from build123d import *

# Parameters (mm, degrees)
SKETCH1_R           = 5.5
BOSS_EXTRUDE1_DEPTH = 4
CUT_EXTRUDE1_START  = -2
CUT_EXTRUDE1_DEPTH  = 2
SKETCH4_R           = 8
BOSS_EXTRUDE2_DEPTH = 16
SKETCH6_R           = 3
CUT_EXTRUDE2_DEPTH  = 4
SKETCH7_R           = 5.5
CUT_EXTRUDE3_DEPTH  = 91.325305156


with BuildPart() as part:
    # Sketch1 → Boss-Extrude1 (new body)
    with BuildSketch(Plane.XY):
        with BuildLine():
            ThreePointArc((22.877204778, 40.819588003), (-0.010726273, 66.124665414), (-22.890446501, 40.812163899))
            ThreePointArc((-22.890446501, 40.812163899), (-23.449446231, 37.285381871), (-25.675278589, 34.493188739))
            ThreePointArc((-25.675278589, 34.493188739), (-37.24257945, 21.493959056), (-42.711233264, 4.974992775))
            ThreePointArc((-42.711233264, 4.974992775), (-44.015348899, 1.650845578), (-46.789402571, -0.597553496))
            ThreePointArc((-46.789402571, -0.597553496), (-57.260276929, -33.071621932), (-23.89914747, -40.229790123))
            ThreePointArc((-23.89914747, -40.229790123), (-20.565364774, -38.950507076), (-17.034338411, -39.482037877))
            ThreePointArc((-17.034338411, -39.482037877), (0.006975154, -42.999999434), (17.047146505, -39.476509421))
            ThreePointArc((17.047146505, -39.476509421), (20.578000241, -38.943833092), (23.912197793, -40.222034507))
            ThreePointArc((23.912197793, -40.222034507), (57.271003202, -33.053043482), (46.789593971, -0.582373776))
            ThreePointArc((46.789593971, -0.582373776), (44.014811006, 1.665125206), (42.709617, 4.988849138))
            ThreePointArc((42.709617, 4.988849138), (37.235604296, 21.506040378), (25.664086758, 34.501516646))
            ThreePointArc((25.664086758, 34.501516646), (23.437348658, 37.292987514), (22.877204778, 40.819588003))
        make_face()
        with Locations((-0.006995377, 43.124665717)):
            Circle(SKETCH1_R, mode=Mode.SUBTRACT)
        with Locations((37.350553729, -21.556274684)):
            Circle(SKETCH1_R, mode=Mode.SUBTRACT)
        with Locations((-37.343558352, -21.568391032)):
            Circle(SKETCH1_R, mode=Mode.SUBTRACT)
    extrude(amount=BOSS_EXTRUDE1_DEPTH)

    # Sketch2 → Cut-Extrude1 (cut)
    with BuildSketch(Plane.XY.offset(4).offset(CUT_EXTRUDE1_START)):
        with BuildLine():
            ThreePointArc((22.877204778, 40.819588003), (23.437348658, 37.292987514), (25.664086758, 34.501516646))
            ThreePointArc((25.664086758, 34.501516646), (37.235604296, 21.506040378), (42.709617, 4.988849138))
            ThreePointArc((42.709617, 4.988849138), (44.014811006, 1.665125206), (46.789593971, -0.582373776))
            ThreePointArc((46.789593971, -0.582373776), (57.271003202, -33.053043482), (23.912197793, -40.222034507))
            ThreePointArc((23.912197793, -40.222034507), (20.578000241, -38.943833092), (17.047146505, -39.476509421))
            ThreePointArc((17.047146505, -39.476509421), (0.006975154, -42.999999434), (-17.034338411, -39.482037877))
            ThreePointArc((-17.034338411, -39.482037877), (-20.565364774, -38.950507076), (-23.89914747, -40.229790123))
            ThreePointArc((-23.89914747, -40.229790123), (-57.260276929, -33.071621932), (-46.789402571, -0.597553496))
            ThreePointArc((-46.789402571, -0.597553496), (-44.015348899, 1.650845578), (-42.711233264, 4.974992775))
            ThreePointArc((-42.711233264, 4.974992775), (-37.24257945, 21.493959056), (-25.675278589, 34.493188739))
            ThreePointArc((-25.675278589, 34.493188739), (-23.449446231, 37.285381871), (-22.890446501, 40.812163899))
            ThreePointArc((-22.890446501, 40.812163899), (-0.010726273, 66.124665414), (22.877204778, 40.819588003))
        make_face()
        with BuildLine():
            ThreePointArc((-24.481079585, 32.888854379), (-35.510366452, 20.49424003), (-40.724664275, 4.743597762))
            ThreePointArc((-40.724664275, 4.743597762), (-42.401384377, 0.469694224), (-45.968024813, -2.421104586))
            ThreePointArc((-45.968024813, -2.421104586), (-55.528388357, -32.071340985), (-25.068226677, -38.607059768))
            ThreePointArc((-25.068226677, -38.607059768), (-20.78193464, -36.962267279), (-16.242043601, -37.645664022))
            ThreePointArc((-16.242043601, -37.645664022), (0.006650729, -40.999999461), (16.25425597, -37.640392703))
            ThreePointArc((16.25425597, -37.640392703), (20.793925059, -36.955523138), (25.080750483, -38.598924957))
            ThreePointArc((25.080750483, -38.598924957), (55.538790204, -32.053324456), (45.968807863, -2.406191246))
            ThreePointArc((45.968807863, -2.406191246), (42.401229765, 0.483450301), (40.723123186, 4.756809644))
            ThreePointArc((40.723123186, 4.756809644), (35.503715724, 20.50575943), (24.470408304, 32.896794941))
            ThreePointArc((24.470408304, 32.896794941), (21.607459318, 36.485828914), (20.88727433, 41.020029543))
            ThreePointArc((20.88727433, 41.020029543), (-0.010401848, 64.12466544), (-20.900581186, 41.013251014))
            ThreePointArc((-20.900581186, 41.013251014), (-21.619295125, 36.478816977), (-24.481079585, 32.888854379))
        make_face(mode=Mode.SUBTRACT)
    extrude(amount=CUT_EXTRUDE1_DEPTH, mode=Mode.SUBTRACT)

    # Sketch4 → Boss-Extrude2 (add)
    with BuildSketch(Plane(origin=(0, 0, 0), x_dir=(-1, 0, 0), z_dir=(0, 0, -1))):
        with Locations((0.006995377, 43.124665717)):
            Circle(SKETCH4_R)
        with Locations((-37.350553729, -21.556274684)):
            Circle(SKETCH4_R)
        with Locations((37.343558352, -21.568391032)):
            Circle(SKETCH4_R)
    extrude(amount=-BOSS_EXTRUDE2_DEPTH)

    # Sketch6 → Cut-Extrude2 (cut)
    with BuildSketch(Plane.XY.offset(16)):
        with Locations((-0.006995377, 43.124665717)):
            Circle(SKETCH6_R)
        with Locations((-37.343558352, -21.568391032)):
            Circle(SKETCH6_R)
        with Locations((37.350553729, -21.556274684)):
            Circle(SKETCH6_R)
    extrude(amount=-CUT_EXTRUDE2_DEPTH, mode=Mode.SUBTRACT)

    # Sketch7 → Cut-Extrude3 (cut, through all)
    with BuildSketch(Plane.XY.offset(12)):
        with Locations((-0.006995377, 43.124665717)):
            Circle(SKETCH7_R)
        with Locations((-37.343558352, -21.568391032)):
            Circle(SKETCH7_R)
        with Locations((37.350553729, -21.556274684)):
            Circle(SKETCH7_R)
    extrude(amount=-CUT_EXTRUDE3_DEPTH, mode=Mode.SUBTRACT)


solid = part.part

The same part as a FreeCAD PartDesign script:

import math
import FreeCAD as App
import Part
import Sketcher

doc = App.newDocument("Part")
body = doc.addObject("PartDesign::Body", "Body")

# Sketch on XY plane
sketch1 = doc.addObject("Sketcher::SketchObject", "Sketch")
body.addObject(sketch1)
sketch1.AttachmentSupport = (doc.XY_Plane, [""])
sketch1.MapMode = "FlatFace"
sketch1.addGeometry([
    Part.ArcOfCircle(Part.Circle(App.Vector(0, 43, 0), App.Vector(0, 0, 1), 23), math.radians(-6), math.radians(186)),  # 0
    Part.ArcOfCircle(Part.Circle(App.Vector(-30, 40, 0), App.Vector(0, 0, 1), 7), math.radians(-53), math.radians(6)),  # 1
    Part.ArcOfCircle(Part.Circle(App.Vector(0, 0, 0), App.Vector(0, 0, 1), 43), math.radians(127), math.radians(173)),  # 2
    Part.ArcOfCircle(Part.Circle(App.Vector(-50, 6, 0), App.Vector(0, 0, 1), 7), math.radians(-66), math.radians(-7)),  # 3
    Part.ArcOfCircle(Part.Circle(App.Vector(-37, -22, 0), App.Vector(0, 0, 1), 23), math.radians(114), math.radians(306)),  # 4
    Part.ArcOfCircle(Part.Circle(App.Vector(-20, -46, 0), App.Vector(0, 0, 1), 7), math.radians(67), math.radians(126)),  # 5
    Part.ArcOfCircle(Part.Circle(App.Vector(0, 0, 0), App.Vector(0, 0, 1), 43), math.radians(-113), math.radians(-67)),  # 6
    Part.ArcOfCircle(Part.Circle(App.Vector(20, -46, 0), App.Vector(0, 0, 1), 7), math.radians(54), math.radians(113)),  # 7
    Part.ArcOfCircle(Part.Circle(App.Vector(37, -22, 0), App.Vector(0, 0, 1), 23), math.radians(-126), math.radians(66)),  # 8
    Part.ArcOfCircle(Part.Circle(App.Vector(50, 6, 0), App.Vector(0, 0, 1), 7), math.radians(-173), math.radians(-114)),  # 9
    Part.ArcOfCircle(Part.Circle(App.Vector(0, 0, 0), App.Vector(0, 0, 1), 43), math.radians(7), math.radians(53)),  # 10
    Part.ArcOfCircle(Part.Circle(App.Vector(30, 40, 0), App.Vector(0, 0, 1), 7), math.radians(174), math.radians(233)),  # 11
    Part.Circle(App.Vector(-37, -22, 0), App.Vector(0, 0, 1), 6),  # 12
    Part.Circle(App.Vector(37, -22, 0), App.Vector(0, 0, 1), 6),  # 13
    Part.Circle(App.Vector(0, 43, 0), App.Vector(0, 0, 1), 6),  # 14
], False)
sketch1.addConstraint([
    Sketcher.Constraint("Tangent", 0, 2, 1, 2),
    Sketcher.Constraint("Tangent", 1, 1, 2, 1),
    Sketcher.Constraint("Tangent", 2, 2, 3, 2),
    Sketcher.Constraint("Tangent", 3, 1, 4, 1),
    Sketcher.Constraint("Tangent", 4, 2, 5, 2),
    Sketcher.Constraint("Tangent", 5, 1, 6, 1),
    Sketcher.Constraint("Tangent", 6, 2, 7, 2),
    Sketcher.Constraint("Tangent", 7, 1, 8, 1),
    Sketcher.Constraint("Tangent", 8, 2, 9, 2),
    Sketcher.Constraint("Tangent", 9, 1, 10, 1),
    Sketcher.Constraint("Tangent", 10, 2, 11, 2),
    Sketcher.Constraint("Tangent", 11, 1, 0, 1),
    Sketcher.Constraint("Coincident", 2, 3, -1, 1),
    Sketcher.Constraint("Coincident", 6, 3, -1, 1),
    Sketcher.Constraint("Coincident", 10, 3, -1, 1),
    Sketcher.Constraint("Coincident", 12, 3, 4, 3),
    Sketcher.Constraint("Coincident", 13, 3, 8, 3),
    Sketcher.Constraint("Coincident", 14, 3, 0, 3),
    Sketcher.Constraint("Equal", 1, 3),
    Sketcher.Constraint("Equal", 0, 4),
    Sketcher.Constraint("Equal", 3, 5),
    Sketcher.Constraint("Equal", 2, 6),
    Sketcher.Constraint("Equal", 5, 7),
    Sketcher.Constraint("Equal", 4, 8),
    Sketcher.Constraint("Equal", 7, 9),
    Sketcher.Constraint("Equal", 6, 10),
    Sketcher.Constraint("Equal", 9, 11),
    Sketcher.Constraint("Equal", 12, 13),
    Sketcher.Constraint("Equal", 13, 14),
    Sketcher.Constraint("Diameter", 12, 11.0),
    Sketcher.Constraint("Radius", 0, 23.0),
    Sketcher.Constraint("Radius", 1, 7.0),
    Sketcher.Constraint("Radius", 2, 43.0),
    Sketcher.Constraint("DistanceY", 0, 2, 0, 3, 2.312502),
    Sketcher.Constraint("DistanceY", 4, 2, 4, 3, 18.661399),
    Sketcher.Constraint("DistanceX", 5, 1, 7, 3, 36.856602),
    Sketcher.Constraint("DistanceY", 8, 3, 8, 2, 20.973901),
    Sketcher.Constraint("DistanceX", 0, 3, 11, 1, 22.8842),
    Sketcher.Constraint("DistanceX", 4, 3, -1, 1, 37.343558),
])
pad1 = doc.addObject("PartDesign::Pad", "Pad")
body.addObject(pad1)
pad1.Profile = sketch1
pad1.Length = 4

# Sketch on XY plane
sketch2 = doc.addObject("Sketcher::SketchObject", "Sketch001")
body.addObject(sketch2)
sketch2.AttachmentSupport = (doc.XY_Plane, [""])
sketch2.MapMode = "FlatFace"
sketch2.AttachmentOffset = App.Placement(App.Vector(0, 0, 2), App.Rotation())
sketch2.addGeometry([
    Part.ArcOfCircle(Part.Circle(App.Vector(30, 40, 0), App.Vector(0, 0, 1), 7), math.radians(174), math.radians(233)),  # 0
    Part.ArcOfCircle(Part.Circle(App.Vector(0, 43, 0), App.Vector(0, 0, 1), 23), math.radians(-6), math.radians(186)),  # 1
    Part.ArcOfCircle(Part.Circle(App.Vector(-30, 40, 0), App.Vector(0, 0, 1), 7), math.radians(-53), math.radians(6)),  # 2
    Part.ArcOfCircle(Part.Circle(App.Vector(0, 0, 0), App.Vector(0, 0, 1), 43), math.radians(127), math.radians(173)),  # 3
    Part.ArcOfCircle(Part.Circle(App.Vector(-50, 6, 0), App.Vector(0, 0, 1), 7), math.radians(-66), math.radians(-7)),  # 4
    Part.ArcOfCircle(Part.Circle(App.Vector(-37, -22, 0), App.Vector(0, 0, 1), 23), math.radians(114), math.radians(306)),  # 5
    Part.ArcOfCircle(Part.Circle(App.Vector(-20, -46, 0), App.Vector(0, 0, 1), 7), math.radians(67), math.radians(126)),  # 6
    Part.ArcOfCircle(Part.Circle(App.Vector(0, 0, 0), App.Vector(0, 0, 1), 43), math.radians(-113), math.radians(-67)),  # 7
    Part.ArcOfCircle(Part.Circle(App.Vector(20, -46, 0), App.Vector(0, 0, 1), 7), math.radians(54), math.radians(113)),  # 8
    Part.ArcOfCircle(Part.Circle(App.Vector(37, -22, 0), App.Vector(0, 0, 1), 23), math.radians(-126), math.radians(66)),  # 9
    Part.ArcOfCircle(Part.Circle(App.Vector(50, 6, 0), App.Vector(0, 0, 1), 7), math.radians(-173), math.radians(-114)),  # 10
    Part.ArcOfCircle(Part.Circle(App.Vector(0, 0, 0), App.Vector(0, 0, 1), 43), math.radians(7), math.radians(53)),  # 11
    Part.ArcOfCircle(Part.Circle(App.Vector(-30, 40, 0), App.Vector(0, 0, 1), 9), math.radians(-53), math.radians(6)),  # 12
    Part.ArcOfCircle(Part.Circle(App.Vector(0, 43, 0), App.Vector(0, 0, 1), 21), math.radians(-6), math.radians(186)),  # 13
    Part.ArcOfCircle(Part.Circle(App.Vector(30, 40, 0), App.Vector(0, 0, 1), 9), math.radians(174), math.radians(233)),  # 14
    Part.ArcOfCircle(Part.Circle(App.Vector(0, 0, 0), App.Vector(0, 0, 1), 41), math.radians(7), math.radians(53)),  # 15
    Part.ArcOfCircle(Part.Circle(App.Vector(50, 6, 0), App.Vector(0, 0, 1), 9), math.radians(-173), math.radians(-114)),  # 16
    Part.ArcOfCircle(Part.Circle(App.Vector(37, -22, 0), App.Vector(0, 0, 1), 21), math.radians(-126), math.radians(66)),  # 17
    Part.ArcOfCircle(Part.Circle(App.Vector(20, -46, 0), App.Vector(0, 0, 1), 9), math.radians(54), math.radians(113)),  # 18
    Part.ArcOfCircle(Part.Circle(App.Vector(0, 0, 0), App.Vector(0, 0, 1), 41), math.radians(-113), math.radians(-67)),  # 19
    Part.ArcOfCircle(Part.Circle(App.Vector(-20, -46, 0), App.Vector(0, 0, 1), 9), math.radians(67), math.radians(126)),  # 20
    Part.ArcOfCircle(Part.Circle(App.Vector(-37, -22, 0), App.Vector(0, 0, 1), 21), math.radians(114), math.radians(306)),  # 21
    Part.ArcOfCircle(Part.Circle(App.Vector(-50, 6, 0), App.Vector(0, 0, 1), 9), math.radians(-66), math.radians(-7)),  # 22
    Part.ArcOfCircle(Part.Circle(App.Vector(0, 0, 0), App.Vector(0, 0, 1), 41), math.radians(127), math.radians(173)),  # 23
], False)
sketch2.addConstraint([
    Sketcher.Constraint("Tangent", 0, 1, 1, 1),
    Sketcher.Constraint("Tangent", 1, 2, 2, 2),
    Sketcher.Constraint("Tangent", 2, 1, 3, 1),
    Sketcher.Constraint("Tangent", 3, 2, 4, 2),
    Sketcher.Constraint("Tangent", 4, 1, 5, 1),
    Sketcher.Constraint("Tangent", 5, 2, 6, 2),
    Sketcher.Constraint("Tangent", 6, 1, 7, 1),
    Sketcher.Constraint("Tangent", 7, 2, 8, 2),
    Sketcher.Constraint("Tangent", 8, 1, 9, 1),
    Sketcher.Constraint("Tangent", 9, 2, 10, 2),
    Sketcher.Constraint("Tangent", 10, 1, 11, 1),
    Sketcher.Constraint("Tangent", 11, 2, 0, 2),
    Sketcher.Constraint("Tangent", 12, 2, 13, 2),
    Sketcher.Constraint("Tangent", 13, 1, 14, 1),
    Sketcher.Constraint("Tangent", 14, 2, 15, 2),
    Sketcher.Constraint("Tangent", 15, 1, 16, 1),
    Sketcher.Constraint("Tangent", 16, 2, 17, 2),
    Sketcher.Constraint("Tangent", 17, 1, 18, 1),
    Sketcher.Constraint("Tangent", 18, 2, 19, 2),
    Sketcher.Constraint("Tangent", 19, 1, 20, 1),
    Sketcher.Constraint("Tangent", 20, 2, 21, 2),
    Sketcher.Constraint("Tangent", 21, 1, 22, 1),
    Sketcher.Constraint("Tangent", 22, 2, 23, 2),
    Sketcher.Constraint("Tangent", 23, 1, 12, 1),
    Sketcher.Constraint("Coincident", 3, 3, -1, 1),
    Sketcher.Constraint("Coincident", 7, 3, -1, 1),
    Sketcher.Constraint("Coincident", 11, 3, -1, 1),
    Sketcher.Constraint("Coincident", 15, 3, -1, 1),
    Sketcher.Constraint("Coincident", 19, 3, -1, 1),
    Sketcher.Constraint("Coincident", 23, 3, -1, 1),
    Sketcher.Constraint("Coincident", 12, 3, 2, 3),
    Sketcher.Constraint("Coincident", 13, 3, 1, 3),
    Sketcher.Constraint("Coincident", 14, 3, 0, 3),
    Sketcher.Constraint("Coincident", 16, 3, 10, 3),
    Sketcher.Constraint("Coincident", 17, 3, 9, 3),
    Sketcher.Constraint("Coincident", 18, 3, 8, 3),
    Sketcher.Constraint("Coincident", 20, 3, 6, 3),
    Sketcher.Constraint("Coincident", 21, 3, 5, 3),
    Sketcher.Constraint("Equal", 0, 2),
    Sketcher.Constraint("Equal", 2, 4),
    Sketcher.Constraint("Equal", 1, 5),
    Sketcher.Constraint("Equal", 4, 6),
    Sketcher.Constraint("Equal", 3, 7),
    Sketcher.Constraint("Equal", 6, 8),
    Sketcher.Constraint("Equal", 5, 9),
    Sketcher.Constraint("Equal", 8, 10),
    Sketcher.Constraint("Equal", 7, 11),
    Sketcher.Constraint("Equal", 20, 22),
    Sketcher.Constraint("Radius", 0, 7.0),
    Sketcher.Constraint("Radius", 1, 23.0),
    Sketcher.Constraint("Radius", 3, 43.0),
    Sketcher.Constraint("Radius", 12, 9.0),
    Sketcher.Constraint("DistanceY", 16, 2, 15, 1, 7.163001),
    Sketcher.Constraint("DistanceX", 13, 3, 0, 1, 22.8842),
    Sketcher.Constraint("DistanceY", 16, 3, 0, 1, 35.018601),
    Sketcher.Constraint("DistanceY", 1, 2, 13, 3, 2.312502),
    Sketcher.Constraint("DistanceY", 5, 2, 5, 3, 18.661399),
    Sketcher.Constraint("DistanceX", 4, 3, 21, 1, 3.6962),
])
pocket1 = doc.addObject("PartDesign::Pocket", "Pocket")
body.addObject(pocket1)
pocket1.Profile = sketch2
pocket1.Length = 2
pocket1.Reversed = True

# Sketch on XY plane
sketch3 = doc.addObject("Sketcher::SketchObject", "Sketch002")
body.addObject(sketch3)
sketch3.AttachmentSupport = (doc.XY_Plane, [""])
sketch3.MapMode = "FlatFace"
sketch3.addGeometry([
    Part.Circle(App.Vector(0, 43, 0), App.Vector(0, 0, 1), 8),
    Part.Circle(App.Vector(37, -22, 0), App.Vector(0, 0, 1), 8),
    Part.Circle(App.Vector(-37, -22, 0), App.Vector(0, 0, 1), 8),
], False)
sketch3.addConstraint([
    Sketcher.Constraint("Equal", 0, 1),
    Sketcher.Constraint("Equal", 1, 2),
    Sketcher.Constraint("Diameter", 0, 16.0),
    Sketcher.Constraint("DistanceX", 2, 3, -1, 1, 37.343558),
    Sketcher.Constraint("DistanceY", 2, 3, -1, 1, 21.568391),
    Sketcher.Constraint("DistanceX", 0, 3, 1, 3, 37.357549),
    Sketcher.Constraint("DistanceY", 1, 3, 0, 3, 64.68094),
    Sketcher.Constraint("DistanceX", 0, 3, -1, 1, 0.006995),
    Sketcher.Constraint("DistanceY", -1, 1, 0, 3, 43.124666),
])
pad2 = doc.addObject("PartDesign::Pad", "Pad001")
body.addObject(pad2)
pad2.Profile = sketch3
pad2.Length = 16

# Sketch on XY plane
sketch4 = doc.addObject("Sketcher::SketchObject", "Sketch003")
body.addObject(sketch4)
sketch4.AttachmentSupport = (doc.XY_Plane, [""])
sketch4.MapMode = "FlatFace"
sketch4.AttachmentOffset = App.Placement(App.Vector(0, 0, 16), App.Rotation())
sketch4.addGeometry([
    Part.Circle(App.Vector(0, 43.1, 0), App.Vector(0, 0, 1), 3),
    Part.Circle(App.Vector(-37.3, -21.6, 0), App.Vector(0, 0, 1), 3),
    Part.Circle(App.Vector(37.4, -21.6, 0), App.Vector(0, 0, 1), 3),
], False)
sketch4.addConstraint([
    Sketcher.Constraint("Equal", 0, 1),
    Sketcher.Constraint("Equal", 1, 2),
    Sketcher.Constraint("Diameter", 0, 6.0),
    Sketcher.Constraint("DistanceX", 1, 3, -1, 1, 37.343558),
    Sketcher.Constraint("DistanceY", 1, 3, -1, 1, 21.568391),
    Sketcher.Constraint("DistanceX", 0, 3, 2, 3, 37.357549),
    Sketcher.Constraint("DistanceY", 2, 3, 0, 3, 64.68094),
    Sketcher.Constraint("DistanceX", 0, 3, -1, 1, 0.006995),
    Sketcher.Constraint("DistanceY", -1, 1, 0, 3, 43.124666),
])
pocket2 = doc.addObject("PartDesign::Pocket", "Pocket001")
body.addObject(pocket2)
pocket2.Profile = sketch4
pocket2.Length = 4

# Sketch on XY plane
sketch5 = doc.addObject("Sketcher::SketchObject", "Sketch004")
body.addObject(sketch5)
sketch5.AttachmentSupport = (doc.XY_Plane, [""])
sketch5.MapMode = "FlatFace"
sketch5.AttachmentOffset = App.Placement(App.Vector(0, 0, 12), App.Rotation())
sketch5.addGeometry([
    Part.Circle(App.Vector(0, 43, 0), App.Vector(0, 0, 1), 6),
    Part.Circle(App.Vector(-37, -22, 0), App.Vector(0, 0, 1), 6),
    Part.Circle(App.Vector(37, -22, 0), App.Vector(0, 0, 1), 6),
], False)
sketch5.addConstraint([
    Sketcher.Constraint("Equal", 0, 1),
    Sketcher.Constraint("Equal", 1, 2),
    Sketcher.Constraint("Diameter", 0, 11.0),
    Sketcher.Constraint("DistanceX", 1, 3, -1, 1, 37.343558),
    Sketcher.Constraint("DistanceY", 1, 3, -1, 1, 21.568391),
    Sketcher.Constraint("DistanceX", 0, 3, 2, 3, 37.357549),
    Sketcher.Constraint("DistanceY", 2, 3, 0, 3, 64.68094),
    Sketcher.Constraint("DistanceX", 0, 3, -1, 1, 0.006995),
    Sketcher.Constraint("DistanceY", -1, 1, 0, 3, 43.124666),
])
pocket3 = doc.addObject("PartDesign::Pocket", "Pocket002")
body.addObject(pocket3)
pocket3.Profile = sketch5
pocket3.Type = "ThroughAll"

doc.recompute()
